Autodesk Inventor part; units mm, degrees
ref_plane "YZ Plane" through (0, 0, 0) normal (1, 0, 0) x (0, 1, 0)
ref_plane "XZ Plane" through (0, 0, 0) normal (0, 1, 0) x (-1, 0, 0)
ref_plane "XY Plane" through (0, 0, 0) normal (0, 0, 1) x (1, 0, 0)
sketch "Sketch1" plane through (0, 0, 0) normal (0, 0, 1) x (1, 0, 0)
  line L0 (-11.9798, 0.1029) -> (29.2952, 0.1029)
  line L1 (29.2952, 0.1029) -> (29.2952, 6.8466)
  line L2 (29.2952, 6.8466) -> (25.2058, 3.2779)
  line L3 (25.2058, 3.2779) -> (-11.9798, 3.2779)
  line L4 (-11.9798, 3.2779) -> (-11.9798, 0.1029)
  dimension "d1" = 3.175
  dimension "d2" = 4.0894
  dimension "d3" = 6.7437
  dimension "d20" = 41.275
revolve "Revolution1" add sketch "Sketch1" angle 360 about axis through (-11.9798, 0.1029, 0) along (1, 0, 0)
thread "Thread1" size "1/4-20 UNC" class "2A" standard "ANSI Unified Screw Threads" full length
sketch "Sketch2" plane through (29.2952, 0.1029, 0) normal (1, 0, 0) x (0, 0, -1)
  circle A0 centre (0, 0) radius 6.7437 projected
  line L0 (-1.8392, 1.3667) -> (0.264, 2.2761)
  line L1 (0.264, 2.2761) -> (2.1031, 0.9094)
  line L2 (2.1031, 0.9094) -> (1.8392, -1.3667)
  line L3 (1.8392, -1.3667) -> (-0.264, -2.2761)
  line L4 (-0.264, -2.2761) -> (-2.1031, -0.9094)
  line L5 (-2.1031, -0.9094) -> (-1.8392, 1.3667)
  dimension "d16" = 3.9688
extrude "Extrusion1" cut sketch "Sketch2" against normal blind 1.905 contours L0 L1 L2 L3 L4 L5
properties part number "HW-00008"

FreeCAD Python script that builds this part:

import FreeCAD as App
import Part
import Sketcher
from FreeCAD import Vector
Q = App.Units.Quantity

doc = App.newDocument("Part")
body = doc.addObject("PartDesign::Body", "Body")

sketch1 = body.newObject("Sketcher::SketchObject", "Sketch")
sketch1.AttachmentSupport = (doc.getObject("XY_Plane"), [""])
sketch1.MapMode = "FlatFace"
sketch1.addGeometry([
    Part.LineSegment(Vector(-12, 3.3, 0), Vector(-12, 0.1, 0)),
    Part.LineSegment(Vector(-12, 0.1, 0), Vector(29.3, 0.1, 0)),
    Part.LineSegment(Vector(29.3, 0.1, 0), Vector(29.3, 6.8, 0)),
    Part.LineSegment(Vector(29.3, 6.8, 0), Vector(25.2, 3.3, 0)),
    Part.LineSegment(Vector(25.2, 3.3, 0), Vector(-12, 3.3, 0)),
], False)
sketch1.addGeometry(Part.LineSegment(Vector(-12, 0.1, 0), Vector(29.3, 0.1, 0)), True)
sketch1.addConstraint([
    Sketcher.Constraint("Coincident", 0, 2, 1, 1),
    Sketcher.Constraint("Coincident", 1, 2, 2, 1),
    Sketcher.Constraint("Coincident", 2, 2, 3, 1),
    Sketcher.Constraint("Coincident", 3, 2, 4, 1),
    Sketcher.Constraint("Coincident", 4, 2, 0, 1),
    Sketcher.Constraint("Vertical", 0),
    Sketcher.Constraint("Horizontal", 1),
    Sketcher.Constraint("Vertical", 2),
    Sketcher.Constraint("Horizontal", 4),
    Sketcher.Constraint("Horizontal", 5),
    Sketcher.Constraint("Coincident", 5, 1, 0, 2),
    Sketcher.Constraint("Vertical", 2, 2, 5, 2),
    Sketcher.Constraint("DistanceX", 1, 1, 1, 2, Q("1.625 in")),
    Sketcher.Constraint("DistanceY", 0, 2, 0, 1, Q("0.125 in")),
    Sketcher.Constraint("DistanceY", 2, 1, 2, 2, Q("0.2655 in")),
    Sketcher.Constraint("DistanceX", 3, 2, 1, 2, Q("0.161 in")),
    Sketcher.Constraint("DistanceX", 0, 2, -1, 1, 11.9798),
    Sketcher.Constraint("DistanceY", -1, 1, 0, 2, 0.103),
])
revolution = body.newObject("PartDesign::Revolution", "Revolution")
revolution.Profile = sketch1
revolution.ReferenceAxis = (sketch1, ["Axis0"])
revolution.Angle = 360

sketch2 = body.newObject("Sketcher::SketchObject", "Sketch001")
sketch2.AttachmentSupport = (doc.getObject("YZ_Plane"), [""])
sketch2.MapMode = "FlatFace"
sketch2.AttachmentOffset = App.Placement(Vector(0, 0, 29.2952), App.Rotation())
sketch2.addGeometry([
    Part.LineSegment(Vector(2.4, -0.3, 0), Vector(1.5, 1.8, 0)),
    Part.LineSegment(Vector(1.5, 1.8, 0), Vector(-0.8, 2.1, 0)),
    Part.LineSegment(Vector(-0.8, 2.1, 0), Vector(-2.2, 0.3, 0)),
    Part.LineSegment(Vector(-2.2, 0.3, 0), Vector(-1.3, -1.8, 0)),
    Part.LineSegment(Vector(-1.3, -1.8, 0), Vector(1, -2.1, 0)),
    Part.LineSegment(Vector(1, -2.1, 0), Vector(2.4, -0.3, 0)),
], False)
sketch2.addConstraint([
    Sketcher.Constraint("Coincident", 0, 2, 1, 1),
    Sketcher.Constraint("Coincident", 1, 2, 2, 1),
    Sketcher.Constraint("Coincident", 2, 2, 3, 1),
    Sketcher.Constraint("Coincident", 3, 2, 4, 1),
    Sketcher.Constraint("Coincident", 4, 2, 5, 1),
    Sketcher.Constraint("Coincident", 5, 2, 0, 1),
    Sketcher.Constraint("Parallel", 0, 3),
    Sketcher.Constraint("Parallel", 1, 4),
    Sketcher.Constraint("Parallel", 2, 5),
    Sketcher.Constraint("Equal", 0, 1),
    Sketcher.Constraint("Equal", 1, 2),
    Sketcher.Constraint("Equal", 2, 3),
    Sketcher.Constraint("DistanceX", 3, 2, 1, 2, Q("0.018 in")),
    Sketcher.Constraint("Distance", 1, Q("0.0902 in")),
    Sketcher.Constraint("DistanceY", -1, 1, 0, 2, Q("0.0724 in")),
    Sketcher.Constraint("DistanceY", -1, 1, 1, 2, Q("0.0828 in")),
    Sketcher.Constraint("DistanceY", -1, 1, 2, 2, Q("0.0104 in")),
    Sketcher.Constraint("DistanceX", -1, 1, 0, 2, 1.4696),
])
pocket1 = body.newObject("PartDesign::Pocket", "Pocket")
pocket1.Profile = sketch2
pocket1.Length = Q("0.075 in")

doc.recompute()
